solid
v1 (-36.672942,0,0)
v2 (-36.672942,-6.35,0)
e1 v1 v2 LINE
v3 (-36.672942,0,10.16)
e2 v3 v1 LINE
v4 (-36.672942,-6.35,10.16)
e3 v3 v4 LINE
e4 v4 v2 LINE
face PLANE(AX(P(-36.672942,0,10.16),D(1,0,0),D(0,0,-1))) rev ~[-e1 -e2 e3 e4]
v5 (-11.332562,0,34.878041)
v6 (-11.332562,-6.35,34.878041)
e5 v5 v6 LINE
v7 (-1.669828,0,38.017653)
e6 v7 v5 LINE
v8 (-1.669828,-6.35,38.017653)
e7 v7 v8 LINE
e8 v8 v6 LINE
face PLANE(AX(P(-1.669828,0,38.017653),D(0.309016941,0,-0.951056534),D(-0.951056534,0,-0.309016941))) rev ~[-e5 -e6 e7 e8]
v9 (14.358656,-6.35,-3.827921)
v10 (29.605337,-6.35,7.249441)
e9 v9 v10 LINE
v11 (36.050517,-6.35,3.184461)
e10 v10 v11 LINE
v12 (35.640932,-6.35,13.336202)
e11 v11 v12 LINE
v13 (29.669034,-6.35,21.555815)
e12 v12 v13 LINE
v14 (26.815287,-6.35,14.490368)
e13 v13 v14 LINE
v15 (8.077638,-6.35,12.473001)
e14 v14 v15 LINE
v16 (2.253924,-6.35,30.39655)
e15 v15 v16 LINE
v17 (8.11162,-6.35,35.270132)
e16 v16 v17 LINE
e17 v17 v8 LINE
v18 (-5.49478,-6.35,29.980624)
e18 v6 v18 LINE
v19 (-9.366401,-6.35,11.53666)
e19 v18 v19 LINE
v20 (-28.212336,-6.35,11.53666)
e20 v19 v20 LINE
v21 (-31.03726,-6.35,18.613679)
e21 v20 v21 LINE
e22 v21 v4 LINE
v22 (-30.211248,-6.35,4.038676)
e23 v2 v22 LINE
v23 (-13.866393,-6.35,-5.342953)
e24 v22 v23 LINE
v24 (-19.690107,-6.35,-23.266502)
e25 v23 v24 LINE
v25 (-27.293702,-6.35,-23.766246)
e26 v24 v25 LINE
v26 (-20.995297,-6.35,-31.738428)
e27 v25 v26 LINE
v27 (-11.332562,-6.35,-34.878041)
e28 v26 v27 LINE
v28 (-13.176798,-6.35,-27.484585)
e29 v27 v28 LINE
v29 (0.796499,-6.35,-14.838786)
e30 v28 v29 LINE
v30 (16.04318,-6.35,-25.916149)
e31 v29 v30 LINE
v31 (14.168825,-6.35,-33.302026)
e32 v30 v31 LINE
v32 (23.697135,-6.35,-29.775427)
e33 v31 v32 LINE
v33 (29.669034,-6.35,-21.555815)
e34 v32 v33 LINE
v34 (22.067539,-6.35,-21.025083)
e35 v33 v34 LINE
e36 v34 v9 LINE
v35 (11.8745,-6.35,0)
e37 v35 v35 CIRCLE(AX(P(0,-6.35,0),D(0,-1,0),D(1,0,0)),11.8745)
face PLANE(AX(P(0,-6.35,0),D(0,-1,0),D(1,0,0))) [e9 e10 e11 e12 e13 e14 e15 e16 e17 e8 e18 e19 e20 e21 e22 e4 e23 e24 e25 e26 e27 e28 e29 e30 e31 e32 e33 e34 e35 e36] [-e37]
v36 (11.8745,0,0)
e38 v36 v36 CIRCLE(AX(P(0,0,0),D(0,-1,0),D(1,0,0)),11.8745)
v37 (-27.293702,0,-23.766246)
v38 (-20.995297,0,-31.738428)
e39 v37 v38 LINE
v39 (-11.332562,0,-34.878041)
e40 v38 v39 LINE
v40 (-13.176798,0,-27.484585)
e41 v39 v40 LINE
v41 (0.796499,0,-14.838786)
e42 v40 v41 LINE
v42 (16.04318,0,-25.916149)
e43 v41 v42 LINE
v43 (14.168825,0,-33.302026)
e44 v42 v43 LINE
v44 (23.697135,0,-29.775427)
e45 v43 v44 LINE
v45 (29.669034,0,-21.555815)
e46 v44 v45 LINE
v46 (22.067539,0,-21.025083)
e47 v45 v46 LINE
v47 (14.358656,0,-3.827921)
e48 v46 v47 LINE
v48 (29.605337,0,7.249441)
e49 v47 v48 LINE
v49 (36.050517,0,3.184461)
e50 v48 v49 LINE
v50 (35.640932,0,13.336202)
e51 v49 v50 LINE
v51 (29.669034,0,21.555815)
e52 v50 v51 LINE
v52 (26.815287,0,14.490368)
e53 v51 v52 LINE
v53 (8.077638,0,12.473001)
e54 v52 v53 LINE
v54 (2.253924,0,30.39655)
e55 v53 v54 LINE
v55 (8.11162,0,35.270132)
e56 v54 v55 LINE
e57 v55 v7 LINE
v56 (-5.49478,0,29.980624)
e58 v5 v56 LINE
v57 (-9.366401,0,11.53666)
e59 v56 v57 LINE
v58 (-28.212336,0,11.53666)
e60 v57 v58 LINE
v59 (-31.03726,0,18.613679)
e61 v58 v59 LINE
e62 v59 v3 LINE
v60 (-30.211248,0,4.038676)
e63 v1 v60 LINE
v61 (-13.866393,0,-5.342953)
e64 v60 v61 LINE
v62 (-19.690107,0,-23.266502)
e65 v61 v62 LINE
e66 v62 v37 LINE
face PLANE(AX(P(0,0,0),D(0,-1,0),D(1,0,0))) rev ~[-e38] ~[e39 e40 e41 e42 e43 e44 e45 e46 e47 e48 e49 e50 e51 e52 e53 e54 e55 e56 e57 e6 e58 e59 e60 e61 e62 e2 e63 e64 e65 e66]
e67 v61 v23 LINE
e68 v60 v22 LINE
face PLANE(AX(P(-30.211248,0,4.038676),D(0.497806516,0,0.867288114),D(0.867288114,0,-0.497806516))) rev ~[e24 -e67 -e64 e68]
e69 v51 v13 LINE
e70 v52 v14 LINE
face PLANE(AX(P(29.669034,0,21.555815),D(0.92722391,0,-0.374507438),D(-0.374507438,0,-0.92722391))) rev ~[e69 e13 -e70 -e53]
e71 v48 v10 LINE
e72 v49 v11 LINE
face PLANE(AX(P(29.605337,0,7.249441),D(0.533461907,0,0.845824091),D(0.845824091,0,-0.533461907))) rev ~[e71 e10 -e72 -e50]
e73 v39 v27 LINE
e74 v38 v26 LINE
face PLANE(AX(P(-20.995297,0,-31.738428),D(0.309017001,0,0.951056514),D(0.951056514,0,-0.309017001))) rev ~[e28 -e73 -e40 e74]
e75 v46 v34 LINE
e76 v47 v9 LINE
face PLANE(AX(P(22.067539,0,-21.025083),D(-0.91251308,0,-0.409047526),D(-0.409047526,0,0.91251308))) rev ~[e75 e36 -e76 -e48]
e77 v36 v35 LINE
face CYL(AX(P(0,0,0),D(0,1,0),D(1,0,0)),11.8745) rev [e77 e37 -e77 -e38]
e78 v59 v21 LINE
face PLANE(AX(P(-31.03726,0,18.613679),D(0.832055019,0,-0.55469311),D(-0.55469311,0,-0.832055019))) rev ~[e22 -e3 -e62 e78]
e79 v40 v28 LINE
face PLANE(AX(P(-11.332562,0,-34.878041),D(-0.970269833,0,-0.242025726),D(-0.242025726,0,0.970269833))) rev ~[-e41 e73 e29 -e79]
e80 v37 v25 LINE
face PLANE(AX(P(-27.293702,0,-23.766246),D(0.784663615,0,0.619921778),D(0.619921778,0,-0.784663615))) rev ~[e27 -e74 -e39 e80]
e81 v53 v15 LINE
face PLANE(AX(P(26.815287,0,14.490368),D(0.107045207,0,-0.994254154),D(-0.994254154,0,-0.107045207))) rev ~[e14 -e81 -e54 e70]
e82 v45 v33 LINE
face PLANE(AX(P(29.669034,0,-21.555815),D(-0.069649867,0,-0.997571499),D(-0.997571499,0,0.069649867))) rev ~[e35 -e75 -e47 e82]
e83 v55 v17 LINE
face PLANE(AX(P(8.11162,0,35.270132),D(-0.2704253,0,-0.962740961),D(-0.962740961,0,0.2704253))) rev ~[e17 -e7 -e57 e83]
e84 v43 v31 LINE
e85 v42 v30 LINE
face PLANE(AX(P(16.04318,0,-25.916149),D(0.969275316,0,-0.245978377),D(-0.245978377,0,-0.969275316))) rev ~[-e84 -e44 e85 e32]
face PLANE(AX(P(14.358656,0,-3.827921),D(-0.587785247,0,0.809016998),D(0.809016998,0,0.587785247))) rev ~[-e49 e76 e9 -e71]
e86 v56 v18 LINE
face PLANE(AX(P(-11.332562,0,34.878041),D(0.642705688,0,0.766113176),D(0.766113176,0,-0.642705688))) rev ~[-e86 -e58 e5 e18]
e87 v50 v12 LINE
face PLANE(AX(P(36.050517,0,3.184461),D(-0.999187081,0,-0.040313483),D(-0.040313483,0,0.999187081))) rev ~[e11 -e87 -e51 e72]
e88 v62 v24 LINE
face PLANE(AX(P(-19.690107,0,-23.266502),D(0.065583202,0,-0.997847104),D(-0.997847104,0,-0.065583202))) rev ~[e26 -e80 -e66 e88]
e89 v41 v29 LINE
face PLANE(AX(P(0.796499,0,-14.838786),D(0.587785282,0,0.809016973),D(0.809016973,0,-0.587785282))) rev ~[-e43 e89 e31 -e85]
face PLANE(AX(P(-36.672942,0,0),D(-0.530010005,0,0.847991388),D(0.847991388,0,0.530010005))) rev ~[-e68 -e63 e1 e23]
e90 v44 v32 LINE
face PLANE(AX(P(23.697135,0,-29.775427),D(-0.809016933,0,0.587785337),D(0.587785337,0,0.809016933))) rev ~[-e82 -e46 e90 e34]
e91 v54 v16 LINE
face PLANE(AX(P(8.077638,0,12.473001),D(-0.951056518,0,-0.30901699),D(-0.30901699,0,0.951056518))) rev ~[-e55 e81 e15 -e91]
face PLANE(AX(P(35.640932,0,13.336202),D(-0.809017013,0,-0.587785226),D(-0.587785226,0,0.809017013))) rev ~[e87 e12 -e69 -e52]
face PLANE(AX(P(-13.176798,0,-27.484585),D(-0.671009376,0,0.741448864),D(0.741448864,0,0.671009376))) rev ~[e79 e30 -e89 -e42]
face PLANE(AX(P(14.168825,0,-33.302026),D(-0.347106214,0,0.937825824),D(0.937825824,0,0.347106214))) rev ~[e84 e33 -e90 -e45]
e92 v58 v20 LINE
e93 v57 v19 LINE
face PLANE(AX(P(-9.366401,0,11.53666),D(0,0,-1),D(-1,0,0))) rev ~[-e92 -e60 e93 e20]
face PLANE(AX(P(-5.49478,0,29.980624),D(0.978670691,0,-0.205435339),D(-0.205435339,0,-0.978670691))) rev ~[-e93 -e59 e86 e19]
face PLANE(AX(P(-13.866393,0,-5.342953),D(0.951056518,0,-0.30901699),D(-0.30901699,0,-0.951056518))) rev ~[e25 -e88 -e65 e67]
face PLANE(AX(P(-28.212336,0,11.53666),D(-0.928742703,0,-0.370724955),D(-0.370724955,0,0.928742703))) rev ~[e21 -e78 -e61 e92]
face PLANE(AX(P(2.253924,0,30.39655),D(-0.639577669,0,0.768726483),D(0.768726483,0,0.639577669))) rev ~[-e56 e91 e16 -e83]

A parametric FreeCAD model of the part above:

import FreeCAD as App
import Part
import Sketcher
Q = App.Units.Quantity

doc = App.newDocument("Part")
params = doc.addObject("Spreadsheet::Sheet", "Params")
for row, (alias, value) in enumerate([
    ("sketch1_diameter", "0.935 in"),
    ("sketch1_height", "0.4 in"),
    ("sketch1_length", "0.3 in"),
    ("sketch1_length2", "0.4 in"),
    ("pad1_length", "0.25 in"),
], start=1):
    params.set(f"A{row}", alias)
    params.set(f"B{row}", "=" + value)
    params.setAlias(f"B{row}", alias)

body = doc.addObject("PartDesign::Body", "Body")

# Sketch on XZ plane
sketch1 = body.newObject("Sketcher::SketchObject", "Sketch")
sketch1.AttachmentSupport = (doc.getObject("XZ_Plane"), [""])
sketch1.MapMode = "FlatFace"
sketch1.addGeometry(Part.LineSegment(App.Vector(-5, 30, 0), App.Vector(-9, 12, 0)), False)
sketch1.addGeometry(Part.LineSegment(App.Vector(-9, 12, 0), App.Vector(-28, 12, 0)), False)
sketch1.addGeometry(Part.LineSegment(App.Vector(-28, 12, 0), App.Vector(-31, 19, 0)), False)
sketch1.addGeometry(Part.LineSegment(App.Vector(-31, 19, 0), App.Vector(-37, 10, 0)), False)
sketch1.addGeometry(Part.LineSegment(App.Vector(-37, 10, 0), App.Vector(-37, 0, 0)), False)
sketch1.addGeometry(Part.LineSegment(App.Vector(-37, 0, 0), App.Vector(-30, 4, 0)), False)
sketch1.addGeometry(Part.LineSegment(App.Vector(-30, 4, 0), App.Vector(-14, -5, 0)), False)
sketch1.addGeometry(Part.LineSegment(App.Vector(-14, -5, 0), App.Vector(-20, -23, 0)), False)
sketch1.addGeometry(Part.LineSegment(App.Vector(-20, -23, 0), App.Vector(-27, -24, 0)), False)
sketch1.addGeometry(Part.LineSegment(App.Vector(-27, -24, 0), App.Vector(-21, -32, 0)), False)
sketch1.addGeometry(Part.LineSegment(App.Vector(-21, -32, 0), App.Vector(-11, -35, 0)), False)
sketch1.addGeometry(Part.LineSegment(App.Vector(-11, -35, 0), App.Vector(-13, -27, 0)), False)
sketch1.addGeometry(Part.LineSegment(App.Vector(-13, -27, 0), App.Vector(1, -15, 0)), False)
sketch1.addGeometry(Part.LineSegment(App.Vector(1, -15, 0), App.Vector(16, -26, 0)), False)
sketch1.addGeometry(Part.LineSegment(App.Vector(16, -26, 0), App.Vector(14, -33, 0)), False)
sketch1.addGeometry(Part.LineSegment(App.Vector(14, -33, 0), App.Vector(24, -30, 0)), False)
sketch1.addGeometry(Part.LineSegment(App.Vector(24, -30, 0), App.Vector(30, -22, 0)), False)
sketch1.addGeometry(Part.LineSegment(App.Vector(30, -22, 0), App.Vector(22, -21, 0)), False)
sketch1.addGeometry(Part.LineSegment(App.Vector(22, -21, 0), App.Vector(14, -4, 0)), False)
sketch1.addGeometry(Part.LineSegment(App.Vector(14, -4, 0), App.Vector(30, 7, 0)), False)
sketch1.addGeometry(Part.LineSegment(App.Vector(30, 7, 0), App.Vector(36, 3, 0)), False)
sketch1.addGeometry(Part.LineSegment(App.Vector(36, 3, 0), App.Vector(36, 13, 0)), False)
sketch1.addGeometry(Part.LineSegment(App.Vector(36, 13, 0), App.Vector(30, 22, 0)), False)
sketch1.addGeometry(Part.LineSegment(App.Vector(30, 22, 0), App.Vector(27, 14, 0)), False)
sketch1.addGeometry(Part.LineSegment(App.Vector(27, 14, 0), App.Vector(8, 12, 0)), False)
sketch1.addGeometry(Part.LineSegment(App.Vector(8, 12, 0), App.Vector(2, 30, 0)), False)
sketch1.addGeometry(Part.LineSegment(App.Vector(2, 30, 0), App.Vector(8, 35, 0)), False)
sketch1.addGeometry(Part.LineSegment(App.Vector(8, 35, 0), App.Vector(-2, 38, 0)), False)
sketch1.addGeometry(Part.LineSegment(App.Vector(-2, 38, 0), App.Vector(-11, 35, 0)), False)
sketch1.addGeometry(Part.LineSegment(App.Vector(-11, 35, 0), App.Vector(-5, 30, 0)), False)
sketch1.addGeometry(Part.Circle(App.Vector(0, 0, 0), App.Vector(0, 0, 1), 12), False)
sketch1.addConstraint(Sketcher.Constraint("Coincident", 0, 2, 1, 1))
sketch1.addConstraint(Sketcher.Constraint("Coincident", 1, 2, 2, 1))
sketch1.addConstraint(Sketcher.Constraint("Coincident", 2, 2, 3, 1))
sketch1.addConstraint(Sketcher.Constraint("Coincident", 3, 2, 4, 1))
sketch1.addConstraint(Sketcher.Constraint("Coincident", 4, 2, 5, 1))
sketch1.addConstraint(Sketcher.Constraint("Coincident", 5, 2, 6, 1))
sketch1.addConstraint(Sketcher.Constraint("Coincident", 6, 2, 7, 1))
sketch1.addConstraint(Sketcher.Constraint("Coincident", 7, 2, 8, 1))
sketch1.addConstraint(Sketcher.Constraint("Coincident", 8, 2, 9, 1))
sketch1.addConstraint(Sketcher.Constraint("Coincident", 9, 2, 10, 1))
sketch1.addConstraint(Sketcher.Constraint("Coincident", 10, 2, 11, 1))
sketch1.addConstraint(Sketcher.Constraint("Coincident", 11, 2, 12, 1))
sketch1.addConstraint(Sketcher.Constraint("Coincident", 12, 2, 13, 1))
sketch1.addConstraint(Sketcher.Constraint("Coincident", 13, 2, 14, 1))
sketch1.addConstraint(Sketcher.Constraint("Coincident", 14, 2, 15, 1))
sketch1.addConstraint(Sketcher.Constraint("Coincident", 15, 2, 16, 1))
sketch1.addConstraint(Sketcher.Constraint("Coincident", 16, 2, 17, 1))
sketch1.addConstraint(Sketcher.Constraint("Coincident", 17, 2, 18, 1))
sketch1.addConstraint(Sketcher.Constraint("Coincident", 18, 2, 19, 1))
sketch1.addConstraint(Sketcher.Constraint("Coincident", 19, 2, 20, 1))
sketch1.addConstraint(Sketcher.Constraint("Coincident", 20, 2, 21, 1))
sketch1.addConstraint(Sketcher.Constraint("Coincident", 21, 2, 22, 1))
sketch1.addConstraint(Sketcher.Constraint("Coincident", 22, 2, 23, 1))
sketch1.addConstraint(Sketcher.Constraint("Coincident", 23, 2, 24, 1))
sketch1.addConstraint(Sketcher.Constraint("Coincident", 24, 2, 25, 1))
sketch1.addConstraint(Sketcher.Constraint("Coincident", 25, 2, 26, 1))
sketch1.addConstraint(Sketcher.Constraint("Coincident", 26, 2, 27, 1))
sketch1.addConstraint(Sketcher.Constraint("Coincident", 27, 2, 28, 1))
sketch1.addConstraint(Sketcher.Constraint("Coincident", 28, 2, 29, 1))
sketch1.addConstraint(Sketcher.Constraint("Coincident", 29, 2, 0, 1))
sketch1.addConstraint(Sketcher.Constraint("Horizontal", 1))
sketch1.addConstraint(Sketcher.Constraint("Vertical", 4))
sketch1.addConstraint(Sketcher.Constraint("Coincident", 30, 3, -1, 1))
sketch1.addConstraint(Sketcher.Constraint("Symmetric", 16, 2, 22, 2, -1))
sketch1.addConstraint(Sketcher.Constraint("Symmetric", 10, 2, 28, 2, -1))
sketch1.addConstraint(Sketcher.Constraint("PointOnObject", 4, 2, -1))
sketch1.addConstraint(Sketcher.Constraint("Perpendicular", 7, 10))
sketch1.addConstraint(Sketcher.Constraint("Perpendicular", 13, 16))
sketch1.addConstraint(Sketcher.Constraint("Perpendicular", 19, 22))
sketch1.addConstraint(Sketcher.Constraint("Perpendicular", 25, 28))
sketch1.addConstraint(Sketcher.Constraint("Equal", 2, 5))
sketch1.addConstraint(Sketcher.Constraint("Equal", 0, 6))
sketch1.addConstraint(Sketcher.Constraint("Equal", 6, 7))
sketch1.addConstraint(Sketcher.Constraint("Equal", 5, 8))
sketch1.addConstraint(Sketcher.Constraint("Equal", 3, 9))
sketch1.addConstraint(Sketcher.Constraint("Equal", 9, 10))
sketch1.addConstraint(Sketcher.Constraint("Equal", 8, 11))
sketch1.addConstraint(Sketcher.Constraint("Equal", 7, 12))
sketch1.addConstraint(Sketcher.Constraint("Equal", 12, 13))
sketch1.addConstraint(Sketcher.Constraint("Equal", 11, 14))
sketch1.addConstraint(Sketcher.Constraint("Equal", 10, 15))
sketch1.addConstraint(Sketcher.Constraint("Equal", 15, 16))
sketch1.addConstraint(Sketcher.Constraint("Equal", 14, 17))
sketch1.addConstraint(Sketcher.Constraint("Equal", 13, 18))
sketch1.addConstraint(Sketcher.Constraint("Equal", 18, 19))
sketch1.addConstraint(Sketcher.Constraint("Equal", 17, 20))
sketch1.addConstraint(Sketcher.Constraint("Equal", 16, 21))
sketch1.addConstraint(Sketcher.Constraint("Equal", 21, 22))
sketch1.addConstraint(Sketcher.Constraint("Equal", 20, 23))
sketch1.addConstraint(Sketcher.Constraint("Equal", 19, 24))
sketch1.addConstraint(Sketcher.Constraint("Equal", 24, 25))
sketch1.addConstraint(Sketcher.Constraint("Equal", 23, 26))
sketch1.addConstraint(Sketcher.Constraint("Equal", 22, 27))
sketch1.addConstraint(Sketcher.Constraint("Equal", 27, 28))
sketch1.addConstraint(Sketcher.Constraint("Equal", 26, 29))
sketch1.addConstraint(Sketcher.Constraint("Diameter", 30, Q("0.935 in")))
sketch1.addConstraint(Sketcher.Constraint("DistanceY", 4, 2, 4, 1, Q("0.4 in")))
sketch1.addConstraint(Sketcher.Constraint("Angle", 7, Q("-108 deg")))
sketch1.addConstraint(Sketcher.Constraint("Angle", 13, Q("-36.000002 deg")))
sketch1.addConstraint(Sketcher.Constraint("Angle", 19, Q("36 deg")))
sketch1.addConstraint(Sketcher.Constraint("Angle", 25, Q("108 deg")))
sketch1.addConstraint(Sketcher.Constraint("Distance", 2, Q("0.3 in")))
sketch1.addConstraint(Sketcher.Constraint("Distance", 3, Q("0.4 in")))
sketch1.addConstraint(Sketcher.Constraint("DistanceY", 7, 2, 12, 2, Q("0.3317998 in")))
sketch1.addConstraint(Sketcher.Constraint("DistanceX", 12, 2, 15, 2, Q("0.9015998 in")))
sketch1.addConstraint(Sketcher.Constraint("DistanceX", 0, 2, -1, 1, 9.366401))
sketch1.addConstraint(Sketcher.Constraint("DistanceY", 7, 2, -1, 1, 23.266502))
sketch1.addConstraint(Sketcher.Constraint("DistanceX", 8, 2, -1, 1, 27.293702))
sketch1.addConstraint(Sketcher.Constraint("DistanceX", -1, 1, 12, 2, 0.796499))
sketch1.addConstraint(Sketcher.Constraint("DistanceY", -1, 1, 24, 2, 12.473001))
sketch1.addConstraint(Sketcher.Constraint("DistanceX", 9, 2, 11, 2, 7.818499))
sketch1.addConstraint(Sketcher.Constraint("DistanceY", 11, 2, 12, 2, 12.645799))
sketch1.addConstraint(Sketcher.Constraint("DistanceY", 14, 2, 15, 2, 3.526599))
sketch1.addConstraint(Sketcher.Constraint("DistanceX", 24, 2, 19, 2, 21.527699))
sketch1.addConstraint(Sketcher.Constraint("DistanceX", 2, 2, 28, 2, 19.704698))
sketch1.addConstraint(Sketcher.Constraint("DistanceX", 29, 2, 26, 2, 13.6064))
sketch1.addConstraint(Sketcher.Constraint("DistanceX", 1, 2, 1, 1, 18.845935))
sketch1.addConstraint(Sketcher.Constraint("DistanceY", -1, 1, 0, 2, 11.53666))
sketch1.addConstraint(Sketcher.Constraint("DistanceX", 2, 2, -1, 1, 31.03726))
sketch1.addConstraint(Sketcher.Constraint("DistanceX", -1, 1, 17, 2, 22.067539))
sketch1.setExpression("Constraints[65]", "Params.sketch1_diameter")
sketch1.setExpression("Constraints[66]", "Params.sketch1_height")
sketch1.setExpression("Constraints[71]", "Params.sketch1_length")
sketch1.setExpression("Constraints[72]", "Params.sketch1_length2")
pad1 = body.newObject("PartDesign::Pad", "Pad")
pad1.Profile = sketch1
pad1.setExpression("Length", "Params.pad1_length")

doc.recompute()
